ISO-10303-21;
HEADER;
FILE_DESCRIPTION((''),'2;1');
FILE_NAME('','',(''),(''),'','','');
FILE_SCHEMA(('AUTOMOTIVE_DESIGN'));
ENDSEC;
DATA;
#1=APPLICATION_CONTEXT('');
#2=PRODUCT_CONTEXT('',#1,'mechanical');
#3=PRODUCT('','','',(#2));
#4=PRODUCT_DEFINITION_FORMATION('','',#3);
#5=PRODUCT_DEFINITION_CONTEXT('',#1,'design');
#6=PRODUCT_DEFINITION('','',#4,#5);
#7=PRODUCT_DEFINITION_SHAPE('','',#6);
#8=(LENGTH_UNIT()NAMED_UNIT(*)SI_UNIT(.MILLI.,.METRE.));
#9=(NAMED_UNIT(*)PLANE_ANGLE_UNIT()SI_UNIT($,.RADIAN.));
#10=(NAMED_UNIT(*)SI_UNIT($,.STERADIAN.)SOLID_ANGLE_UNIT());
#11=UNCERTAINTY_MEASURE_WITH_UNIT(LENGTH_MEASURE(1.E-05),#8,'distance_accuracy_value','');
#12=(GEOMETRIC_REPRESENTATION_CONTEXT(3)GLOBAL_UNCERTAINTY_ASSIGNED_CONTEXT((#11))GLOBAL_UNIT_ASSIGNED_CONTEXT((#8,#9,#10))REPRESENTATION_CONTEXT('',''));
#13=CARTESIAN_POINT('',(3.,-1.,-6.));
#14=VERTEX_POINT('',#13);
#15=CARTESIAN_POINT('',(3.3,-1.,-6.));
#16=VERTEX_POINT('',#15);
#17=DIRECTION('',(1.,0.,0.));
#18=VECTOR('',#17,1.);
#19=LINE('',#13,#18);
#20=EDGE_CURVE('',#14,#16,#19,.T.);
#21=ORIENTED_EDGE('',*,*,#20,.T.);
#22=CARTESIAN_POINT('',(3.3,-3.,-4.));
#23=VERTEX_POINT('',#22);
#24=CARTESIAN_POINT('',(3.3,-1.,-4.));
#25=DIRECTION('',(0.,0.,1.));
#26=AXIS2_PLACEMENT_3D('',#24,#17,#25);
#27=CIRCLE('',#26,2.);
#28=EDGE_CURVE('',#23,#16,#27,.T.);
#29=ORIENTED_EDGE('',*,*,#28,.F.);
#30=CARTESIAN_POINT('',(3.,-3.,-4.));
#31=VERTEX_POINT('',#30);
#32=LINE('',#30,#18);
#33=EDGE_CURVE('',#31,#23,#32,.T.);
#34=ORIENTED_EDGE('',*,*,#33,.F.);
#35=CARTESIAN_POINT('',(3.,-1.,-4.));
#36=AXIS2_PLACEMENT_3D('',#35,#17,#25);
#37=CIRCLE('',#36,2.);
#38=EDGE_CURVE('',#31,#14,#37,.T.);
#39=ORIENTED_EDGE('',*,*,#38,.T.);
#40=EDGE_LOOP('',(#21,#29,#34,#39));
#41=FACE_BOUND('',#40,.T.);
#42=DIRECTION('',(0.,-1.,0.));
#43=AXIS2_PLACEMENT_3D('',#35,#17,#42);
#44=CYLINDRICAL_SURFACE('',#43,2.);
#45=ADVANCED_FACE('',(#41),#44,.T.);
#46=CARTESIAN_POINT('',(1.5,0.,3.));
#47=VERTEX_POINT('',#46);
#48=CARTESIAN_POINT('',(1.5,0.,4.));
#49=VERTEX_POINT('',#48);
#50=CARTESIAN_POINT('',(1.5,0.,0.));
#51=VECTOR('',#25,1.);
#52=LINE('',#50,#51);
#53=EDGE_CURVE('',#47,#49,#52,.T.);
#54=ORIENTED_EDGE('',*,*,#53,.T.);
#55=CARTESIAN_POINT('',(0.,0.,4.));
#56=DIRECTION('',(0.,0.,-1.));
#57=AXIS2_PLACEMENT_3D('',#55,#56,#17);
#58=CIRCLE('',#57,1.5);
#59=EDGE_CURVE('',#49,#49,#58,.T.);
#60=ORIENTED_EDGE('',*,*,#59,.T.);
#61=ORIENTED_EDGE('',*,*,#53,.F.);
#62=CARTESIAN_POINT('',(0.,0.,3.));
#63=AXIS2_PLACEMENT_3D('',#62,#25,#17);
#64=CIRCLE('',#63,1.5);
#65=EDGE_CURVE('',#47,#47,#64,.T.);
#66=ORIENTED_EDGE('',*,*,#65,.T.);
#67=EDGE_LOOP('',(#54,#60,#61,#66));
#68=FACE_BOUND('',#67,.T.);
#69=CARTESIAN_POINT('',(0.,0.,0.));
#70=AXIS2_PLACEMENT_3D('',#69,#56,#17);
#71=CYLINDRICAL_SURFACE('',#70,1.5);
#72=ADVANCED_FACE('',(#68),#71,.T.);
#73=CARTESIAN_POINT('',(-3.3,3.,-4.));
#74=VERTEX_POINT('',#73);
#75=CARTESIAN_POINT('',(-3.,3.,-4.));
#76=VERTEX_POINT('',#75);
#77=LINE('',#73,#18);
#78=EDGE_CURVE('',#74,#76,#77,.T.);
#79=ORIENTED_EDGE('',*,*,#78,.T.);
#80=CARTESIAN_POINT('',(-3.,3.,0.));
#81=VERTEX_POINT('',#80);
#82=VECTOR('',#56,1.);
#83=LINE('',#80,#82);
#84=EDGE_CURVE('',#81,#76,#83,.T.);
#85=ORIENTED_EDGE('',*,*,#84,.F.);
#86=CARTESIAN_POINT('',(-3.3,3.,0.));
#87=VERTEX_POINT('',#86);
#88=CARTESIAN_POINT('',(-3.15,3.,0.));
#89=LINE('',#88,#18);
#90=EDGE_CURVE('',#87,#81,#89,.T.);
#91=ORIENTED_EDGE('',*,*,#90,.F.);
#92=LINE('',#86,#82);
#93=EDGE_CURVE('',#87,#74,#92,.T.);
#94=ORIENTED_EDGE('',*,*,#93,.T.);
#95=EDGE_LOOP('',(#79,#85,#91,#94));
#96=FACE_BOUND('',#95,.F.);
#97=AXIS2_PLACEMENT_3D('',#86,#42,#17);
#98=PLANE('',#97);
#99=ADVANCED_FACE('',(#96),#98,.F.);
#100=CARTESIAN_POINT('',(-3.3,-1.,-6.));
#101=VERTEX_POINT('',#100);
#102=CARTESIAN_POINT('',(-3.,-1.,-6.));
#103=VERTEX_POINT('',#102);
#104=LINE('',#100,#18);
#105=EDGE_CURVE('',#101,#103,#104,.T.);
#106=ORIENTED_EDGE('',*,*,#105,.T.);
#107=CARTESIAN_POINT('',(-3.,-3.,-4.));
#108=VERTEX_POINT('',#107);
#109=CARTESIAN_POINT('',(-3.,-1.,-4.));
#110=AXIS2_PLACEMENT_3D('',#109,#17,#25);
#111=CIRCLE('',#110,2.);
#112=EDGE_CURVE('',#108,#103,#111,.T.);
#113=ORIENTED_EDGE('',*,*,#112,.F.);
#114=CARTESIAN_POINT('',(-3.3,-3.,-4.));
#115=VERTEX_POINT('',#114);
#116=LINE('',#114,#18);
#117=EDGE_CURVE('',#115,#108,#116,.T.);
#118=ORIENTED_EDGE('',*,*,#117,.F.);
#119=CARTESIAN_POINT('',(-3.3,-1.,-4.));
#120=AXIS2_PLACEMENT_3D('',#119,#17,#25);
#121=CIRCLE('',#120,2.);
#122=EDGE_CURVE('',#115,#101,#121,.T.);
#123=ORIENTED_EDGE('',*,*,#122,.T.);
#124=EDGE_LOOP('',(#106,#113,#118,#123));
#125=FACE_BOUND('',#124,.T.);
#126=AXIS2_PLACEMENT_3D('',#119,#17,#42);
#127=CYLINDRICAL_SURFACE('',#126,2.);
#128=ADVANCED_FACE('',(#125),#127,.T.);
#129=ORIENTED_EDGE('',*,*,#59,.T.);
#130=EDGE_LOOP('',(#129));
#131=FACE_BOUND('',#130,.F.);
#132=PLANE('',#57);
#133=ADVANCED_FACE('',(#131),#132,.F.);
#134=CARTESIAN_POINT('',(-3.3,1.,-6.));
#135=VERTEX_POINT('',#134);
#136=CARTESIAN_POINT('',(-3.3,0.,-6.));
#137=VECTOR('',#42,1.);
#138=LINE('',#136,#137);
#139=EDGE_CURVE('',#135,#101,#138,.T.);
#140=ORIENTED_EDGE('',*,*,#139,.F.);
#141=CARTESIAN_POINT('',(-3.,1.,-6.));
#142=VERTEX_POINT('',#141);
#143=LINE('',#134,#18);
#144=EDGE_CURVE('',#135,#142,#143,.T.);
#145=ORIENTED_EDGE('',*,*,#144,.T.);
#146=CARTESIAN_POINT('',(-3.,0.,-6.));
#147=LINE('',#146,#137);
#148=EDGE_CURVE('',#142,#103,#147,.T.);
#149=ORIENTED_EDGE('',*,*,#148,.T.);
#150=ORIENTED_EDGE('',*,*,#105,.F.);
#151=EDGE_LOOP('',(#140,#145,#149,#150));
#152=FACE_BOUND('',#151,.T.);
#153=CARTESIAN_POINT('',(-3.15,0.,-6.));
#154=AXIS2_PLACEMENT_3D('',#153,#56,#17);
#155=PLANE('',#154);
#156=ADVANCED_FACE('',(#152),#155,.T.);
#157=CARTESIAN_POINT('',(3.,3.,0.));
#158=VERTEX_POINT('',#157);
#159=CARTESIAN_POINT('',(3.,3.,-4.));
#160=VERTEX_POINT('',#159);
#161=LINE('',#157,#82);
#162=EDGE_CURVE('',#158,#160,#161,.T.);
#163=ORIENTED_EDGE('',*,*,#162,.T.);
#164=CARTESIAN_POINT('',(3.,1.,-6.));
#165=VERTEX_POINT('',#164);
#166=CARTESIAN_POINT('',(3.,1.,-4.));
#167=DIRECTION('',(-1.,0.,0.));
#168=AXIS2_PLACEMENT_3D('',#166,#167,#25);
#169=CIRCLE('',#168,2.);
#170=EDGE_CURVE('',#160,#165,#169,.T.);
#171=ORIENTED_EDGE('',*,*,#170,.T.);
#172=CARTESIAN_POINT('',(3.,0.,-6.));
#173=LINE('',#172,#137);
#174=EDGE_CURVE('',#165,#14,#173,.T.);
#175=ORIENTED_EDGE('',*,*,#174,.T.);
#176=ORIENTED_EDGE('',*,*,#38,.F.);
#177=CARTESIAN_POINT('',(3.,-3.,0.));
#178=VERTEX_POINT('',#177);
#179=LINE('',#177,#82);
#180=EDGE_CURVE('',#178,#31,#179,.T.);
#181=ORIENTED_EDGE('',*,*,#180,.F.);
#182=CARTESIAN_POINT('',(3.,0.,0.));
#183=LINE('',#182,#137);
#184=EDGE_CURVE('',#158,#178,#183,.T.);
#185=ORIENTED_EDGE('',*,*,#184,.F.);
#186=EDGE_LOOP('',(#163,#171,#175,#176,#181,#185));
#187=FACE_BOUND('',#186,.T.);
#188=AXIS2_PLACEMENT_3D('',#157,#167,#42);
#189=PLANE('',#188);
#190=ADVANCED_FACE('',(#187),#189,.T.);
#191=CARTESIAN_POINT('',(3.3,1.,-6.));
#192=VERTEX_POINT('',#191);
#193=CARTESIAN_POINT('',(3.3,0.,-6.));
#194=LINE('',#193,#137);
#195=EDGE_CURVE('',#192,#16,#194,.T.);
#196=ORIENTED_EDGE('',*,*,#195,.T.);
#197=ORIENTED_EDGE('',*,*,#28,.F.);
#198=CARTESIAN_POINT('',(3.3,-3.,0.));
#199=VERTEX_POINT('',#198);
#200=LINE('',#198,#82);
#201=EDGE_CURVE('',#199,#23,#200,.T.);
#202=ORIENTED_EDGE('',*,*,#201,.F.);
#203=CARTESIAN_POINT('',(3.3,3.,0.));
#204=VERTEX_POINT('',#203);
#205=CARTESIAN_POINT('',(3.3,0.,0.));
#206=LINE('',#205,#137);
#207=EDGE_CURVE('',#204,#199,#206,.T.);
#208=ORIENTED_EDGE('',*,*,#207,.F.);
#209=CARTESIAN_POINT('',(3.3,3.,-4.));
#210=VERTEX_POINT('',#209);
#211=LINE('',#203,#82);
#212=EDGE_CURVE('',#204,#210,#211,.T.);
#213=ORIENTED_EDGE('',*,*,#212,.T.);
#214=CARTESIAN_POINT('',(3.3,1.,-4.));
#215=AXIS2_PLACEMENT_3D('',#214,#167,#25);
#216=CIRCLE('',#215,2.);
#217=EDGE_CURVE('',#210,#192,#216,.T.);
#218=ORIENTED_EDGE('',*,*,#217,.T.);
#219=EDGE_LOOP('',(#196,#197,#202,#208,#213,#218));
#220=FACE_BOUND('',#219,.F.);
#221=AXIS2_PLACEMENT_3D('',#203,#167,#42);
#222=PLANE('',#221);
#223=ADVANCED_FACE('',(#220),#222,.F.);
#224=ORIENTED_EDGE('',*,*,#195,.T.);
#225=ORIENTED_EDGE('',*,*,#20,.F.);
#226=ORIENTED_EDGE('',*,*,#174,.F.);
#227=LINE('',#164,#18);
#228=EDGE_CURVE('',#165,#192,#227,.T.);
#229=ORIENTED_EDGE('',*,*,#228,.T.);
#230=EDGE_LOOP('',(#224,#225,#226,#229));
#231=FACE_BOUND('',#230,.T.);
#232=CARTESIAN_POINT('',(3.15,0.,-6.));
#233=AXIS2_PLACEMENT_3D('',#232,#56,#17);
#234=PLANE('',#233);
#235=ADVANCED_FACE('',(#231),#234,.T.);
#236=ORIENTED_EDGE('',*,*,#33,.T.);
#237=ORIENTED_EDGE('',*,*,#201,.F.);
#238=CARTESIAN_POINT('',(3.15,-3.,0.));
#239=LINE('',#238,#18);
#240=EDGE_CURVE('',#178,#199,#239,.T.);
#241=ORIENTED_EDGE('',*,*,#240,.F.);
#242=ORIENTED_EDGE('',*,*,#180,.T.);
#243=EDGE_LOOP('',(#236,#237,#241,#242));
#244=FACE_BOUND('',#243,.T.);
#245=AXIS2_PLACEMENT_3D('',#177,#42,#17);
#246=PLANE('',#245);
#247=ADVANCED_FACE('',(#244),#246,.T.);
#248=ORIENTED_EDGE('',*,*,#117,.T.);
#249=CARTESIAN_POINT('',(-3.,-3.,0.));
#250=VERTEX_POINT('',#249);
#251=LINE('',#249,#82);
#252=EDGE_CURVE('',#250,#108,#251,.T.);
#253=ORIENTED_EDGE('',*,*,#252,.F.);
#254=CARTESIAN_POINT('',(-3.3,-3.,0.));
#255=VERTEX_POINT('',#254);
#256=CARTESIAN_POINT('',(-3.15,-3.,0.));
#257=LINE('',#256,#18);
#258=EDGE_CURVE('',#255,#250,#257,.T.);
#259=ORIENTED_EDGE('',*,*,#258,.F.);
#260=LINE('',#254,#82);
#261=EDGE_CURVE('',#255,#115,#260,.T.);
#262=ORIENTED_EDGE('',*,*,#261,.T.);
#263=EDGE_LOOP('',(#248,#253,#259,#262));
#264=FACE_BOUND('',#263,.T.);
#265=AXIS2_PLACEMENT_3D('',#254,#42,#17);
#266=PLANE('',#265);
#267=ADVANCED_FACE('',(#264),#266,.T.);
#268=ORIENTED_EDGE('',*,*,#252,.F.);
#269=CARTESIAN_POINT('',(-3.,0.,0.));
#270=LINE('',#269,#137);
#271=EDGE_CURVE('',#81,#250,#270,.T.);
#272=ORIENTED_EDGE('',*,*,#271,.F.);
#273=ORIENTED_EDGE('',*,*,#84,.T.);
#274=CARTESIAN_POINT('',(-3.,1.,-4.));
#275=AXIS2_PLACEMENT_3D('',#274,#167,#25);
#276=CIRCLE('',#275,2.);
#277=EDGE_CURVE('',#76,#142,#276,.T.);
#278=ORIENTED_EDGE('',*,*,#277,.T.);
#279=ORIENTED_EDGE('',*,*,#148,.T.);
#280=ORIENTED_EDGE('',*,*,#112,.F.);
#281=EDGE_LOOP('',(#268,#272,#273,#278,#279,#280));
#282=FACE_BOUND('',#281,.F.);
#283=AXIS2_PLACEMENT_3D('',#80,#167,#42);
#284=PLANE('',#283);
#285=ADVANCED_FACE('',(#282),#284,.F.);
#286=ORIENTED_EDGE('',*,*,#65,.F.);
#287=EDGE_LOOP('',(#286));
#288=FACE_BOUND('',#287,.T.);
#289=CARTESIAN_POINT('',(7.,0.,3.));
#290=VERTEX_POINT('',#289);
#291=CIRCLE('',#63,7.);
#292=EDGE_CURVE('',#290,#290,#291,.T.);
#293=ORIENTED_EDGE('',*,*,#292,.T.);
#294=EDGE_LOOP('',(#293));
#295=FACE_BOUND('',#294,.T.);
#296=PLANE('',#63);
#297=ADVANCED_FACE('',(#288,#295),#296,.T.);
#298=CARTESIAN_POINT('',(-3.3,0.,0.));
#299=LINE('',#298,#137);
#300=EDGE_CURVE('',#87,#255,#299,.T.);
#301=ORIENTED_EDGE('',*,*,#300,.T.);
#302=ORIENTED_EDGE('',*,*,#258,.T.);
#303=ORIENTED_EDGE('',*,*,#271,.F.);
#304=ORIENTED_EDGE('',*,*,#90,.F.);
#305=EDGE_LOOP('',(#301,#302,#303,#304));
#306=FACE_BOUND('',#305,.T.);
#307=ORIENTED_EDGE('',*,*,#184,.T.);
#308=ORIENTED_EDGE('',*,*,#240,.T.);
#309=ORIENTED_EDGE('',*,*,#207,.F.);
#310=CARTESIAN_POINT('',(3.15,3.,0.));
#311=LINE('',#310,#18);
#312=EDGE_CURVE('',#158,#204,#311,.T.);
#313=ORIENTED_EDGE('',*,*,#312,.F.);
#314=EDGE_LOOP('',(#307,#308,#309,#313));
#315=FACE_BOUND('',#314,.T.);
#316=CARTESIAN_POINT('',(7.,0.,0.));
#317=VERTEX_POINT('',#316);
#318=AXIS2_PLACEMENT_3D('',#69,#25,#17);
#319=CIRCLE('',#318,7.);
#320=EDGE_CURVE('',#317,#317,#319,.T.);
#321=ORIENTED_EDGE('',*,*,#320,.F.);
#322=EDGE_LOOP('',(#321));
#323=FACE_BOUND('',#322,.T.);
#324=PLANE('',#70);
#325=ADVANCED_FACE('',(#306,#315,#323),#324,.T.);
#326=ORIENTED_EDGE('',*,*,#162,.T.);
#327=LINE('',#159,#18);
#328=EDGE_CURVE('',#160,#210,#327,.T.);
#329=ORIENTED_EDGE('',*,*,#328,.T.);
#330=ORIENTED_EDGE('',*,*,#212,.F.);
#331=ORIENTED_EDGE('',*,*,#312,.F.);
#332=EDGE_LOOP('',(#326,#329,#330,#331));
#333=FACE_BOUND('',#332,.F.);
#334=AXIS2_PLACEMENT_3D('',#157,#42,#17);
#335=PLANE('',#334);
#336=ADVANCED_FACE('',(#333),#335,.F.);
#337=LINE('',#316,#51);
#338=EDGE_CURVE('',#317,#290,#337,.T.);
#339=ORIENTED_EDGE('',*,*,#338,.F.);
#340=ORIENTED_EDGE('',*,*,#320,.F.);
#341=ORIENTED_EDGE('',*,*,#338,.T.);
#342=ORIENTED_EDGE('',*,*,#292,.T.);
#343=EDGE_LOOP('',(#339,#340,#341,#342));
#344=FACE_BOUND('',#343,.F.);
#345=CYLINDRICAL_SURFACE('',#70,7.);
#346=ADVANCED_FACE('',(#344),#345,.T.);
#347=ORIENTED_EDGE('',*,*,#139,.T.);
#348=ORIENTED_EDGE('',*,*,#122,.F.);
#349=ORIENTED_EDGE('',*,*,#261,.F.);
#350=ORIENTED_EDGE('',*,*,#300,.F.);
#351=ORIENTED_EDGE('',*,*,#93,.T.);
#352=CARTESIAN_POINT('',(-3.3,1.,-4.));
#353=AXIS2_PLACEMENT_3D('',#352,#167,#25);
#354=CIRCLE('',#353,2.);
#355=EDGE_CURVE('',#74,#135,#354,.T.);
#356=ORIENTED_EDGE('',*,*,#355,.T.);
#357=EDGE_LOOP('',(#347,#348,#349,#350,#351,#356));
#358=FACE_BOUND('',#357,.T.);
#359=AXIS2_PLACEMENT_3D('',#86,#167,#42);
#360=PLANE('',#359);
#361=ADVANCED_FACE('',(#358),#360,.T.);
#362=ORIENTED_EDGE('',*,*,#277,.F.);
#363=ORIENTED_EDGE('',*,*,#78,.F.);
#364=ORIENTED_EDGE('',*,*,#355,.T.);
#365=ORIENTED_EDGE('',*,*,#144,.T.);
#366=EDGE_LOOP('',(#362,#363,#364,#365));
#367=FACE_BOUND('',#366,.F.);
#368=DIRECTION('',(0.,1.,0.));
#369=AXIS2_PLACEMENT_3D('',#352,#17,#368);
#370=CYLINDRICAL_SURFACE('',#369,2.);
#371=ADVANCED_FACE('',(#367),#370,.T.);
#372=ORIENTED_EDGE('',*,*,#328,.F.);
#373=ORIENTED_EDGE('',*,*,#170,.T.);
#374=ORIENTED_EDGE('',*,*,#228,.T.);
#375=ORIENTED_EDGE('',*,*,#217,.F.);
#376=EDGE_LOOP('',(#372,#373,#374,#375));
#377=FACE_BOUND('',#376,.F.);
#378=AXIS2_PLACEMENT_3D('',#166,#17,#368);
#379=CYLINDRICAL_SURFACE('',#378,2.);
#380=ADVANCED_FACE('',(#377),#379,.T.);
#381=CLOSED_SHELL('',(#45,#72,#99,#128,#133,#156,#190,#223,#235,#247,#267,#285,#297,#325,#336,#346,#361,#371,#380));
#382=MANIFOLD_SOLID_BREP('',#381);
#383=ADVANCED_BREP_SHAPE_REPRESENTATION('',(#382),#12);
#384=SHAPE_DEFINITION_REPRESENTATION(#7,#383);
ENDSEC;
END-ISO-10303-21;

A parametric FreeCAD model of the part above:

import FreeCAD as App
import Part
import Sketcher
from FreeCAD import Vector


def edges_at(feature, points):
    """Names of the edges that pass closest to the given points."""
    edges = feature.Shape.Edges
    near = lambda p: min(range(len(edges)), key=lambda i: edges[i].distToShape(Part.Vertex(*p))[0])
    return sorted({f"Edge{near(p) + 1}" for p in points})


def add_polygon(sketch, points):
    """Adds a closed chain of lines whose ends are joined by coincident constraints."""
    first, n = sketch.GeometryCount, len(points)
    for a, b in zip(points, points[1:] + points[:1]):
        sketch.addGeometry(Part.LineSegment(App.Vector(*a, 0), App.Vector(*b, 0)), False)
    for i in range(n):
        sketch.addConstraint(Sketcher.Constraint("Coincident", first + i, 2, first + (i + 1) % n, 1))

doc = App.newDocument("Part")
params = doc.addObject("Spreadsheet::Sheet", "Params")
for row, (alias, value) in enumerate([
    ("sketch1_diameter", "14 mm"),
    ("sketch1_diameter2", "3 mm"),
    ("pad1_length", "3 mm"),
    ("pad2_length", "1.5 mm"),
    ("sketch3_height", "6 mm"),
    ("sketch3_width", "0.3 mm"),
    ("pad3_length", "6 mm"),
    ("fillet_radius", "2 mm"),
    ("sketch4_diameter", "3 mm"),
    ("pad4_length", "4 mm"),
], start=1):
    params.set(f"A{row}", alias)
    params.set(f"B{row}", "=" + value)
    params.setAlias(f"B{row}", alias)

body = doc.addObject("PartDesign::Body", "Body")

# Sketch on XY plane
sketch1 = body.newObject("Sketcher::SketchObject", "Sketch")
sketch1.AttachmentSupport = (doc.getObject("XY_Plane"), [""])
sketch1.MapMode = "FlatFace"
sketch1.addGeometry([
    Part.Circle(Vector(0, 0, 0), Vector(0, 0, 1), 7),
    Part.Circle(Vector(0, 0, 0), Vector(0, 0, 1), 1.5),
], False)
sketch1.addConstraint([
    Sketcher.Constraint("Coincident", 0, 3, -1, 1),
    Sketcher.Constraint("Coincident", 1, 3, -1, 1),
    Sketcher.Constraint("Diameter", 0, 14.0),
    Sketcher.Constraint("Diameter", 1, 3.0),
])
sketch1.setExpression("Constraints[2]", "Params.sketch1_diameter")
sketch1.setExpression("Constraints[3]", "Params.sketch1_diameter2")
pad1 = body.newObject("PartDesign::Pad", "Pad")
pad1.Profile = sketch1
pad1.setExpression("Length", "Params.pad1_length")

# Sketch on XY plane
sketch2 = body.newObject("Sketcher::SketchObject", "Sketch001")
sketch2.AttachmentSupport = (doc.getObject("XY_Plane"), [""])
sketch2.MapMode = "FlatFace"
sketch2.addGeometry(Part.Circle(Vector(0, 0, 0), Vector(0, 0, 1), 1.6), False)
sketch2.addConstraint([
    Sketcher.Constraint("Coincident", 0, 3, -1, 1),
    Sketcher.Constraint("Diameter", 0, 3.103804),
])
pad2 = body.newObject("PartDesign::Pad", "Pad001")
pad2.Profile = sketch2
pad2.setExpression("Length", "Params.pad2_length")

# Sketch on XY plane
sketch3 = body.newObject("Sketcher::SketchObject", "Sketch002")
sketch3.AttachmentSupport = (doc.getObject("XY_Plane"), [""])
sketch3.MapMode = "FlatFace"
add_polygon(sketch3, [(-3.3, -3), (-3.3, 3), (-3, 3), (-3, -3)])  # lines 0-3
add_polygon(sketch3, [(3, -3), (3, 3), (3.3, 3), (3.3, -3)])  # lines 4-7
sketch3.addConstraint([
    Sketcher.Constraint("Vertical", 0),
    Sketcher.Constraint("Horizontal", 1),
    Sketcher.Constraint("Vertical", 2),
    Sketcher.Constraint("Horizontal", 3),
    Sketcher.Constraint("Vertical", 4),
    Sketcher.Constraint("Horizontal", 5),
    Sketcher.Constraint("Vertical", 6),
    Sketcher.Constraint("Horizontal", 7),
    Sketcher.Constraint("Symmetric", 2, 2, 4, 2, -1, 1),
    Sketcher.Constraint("Symmetric", 0, 2, 6, 2, -1, 1),
    Sketcher.Constraint("Horizontal", 1, 2, 4, 2),
    Sketcher.Constraint("DistanceY", 0, 1, 0, 2, 6.0),
    Sketcher.Constraint("DistanceX", 1, 1, 1, 2, 0.3),
    Sketcher.Constraint("DistanceX", 1, 2, -1, 1, 3.0),
])
sketch3.setExpression("Constraints[19]", "Params.sketch3_height")
sketch3.setExpression("Constraints[20]", "Params.sketch3_width")
pad3 = body.newObject("PartDesign::Pad", "Pad002")
pad3.Profile = sketch3
pad3.setExpression("Length", "Params.pad3_length")
pad3.Reversed = True
doc.recompute()

fillet = body.newObject("PartDesign::Fillet", "Fillet")
fillet.Base = (pad3, edges_at(pad3, [
    (-3.15, -3, -6),
    (-3.15, 3, -6),
    (3.15, 3, -6),
    (3.15, -3, -6),
]))
fillet.setExpression("Radius", "Params.fillet_radius")

# Sketch on XY plane
sketch4 = body.newObject("Sketcher::SketchObject", "Sketch003")
sketch4.AttachmentSupport = (doc.getObject("XY_Plane"), [""])
sketch4.MapMode = "FlatFace"
sketch4.addGeometry(Part.Circle(Vector(0, 0, 0), Vector(0, 0, 1), 1.5), False)
sketch4.addConstraint([
    Sketcher.Constraint("Coincident", 0, 3, -1, 1),
    Sketcher.Constraint("Diameter", 0, 3.0),
])
sketch4.setExpression("Constraints[1]", "Params.sketch4_diameter")
pad4 = body.newObject("PartDesign::Pad", "Pad003")
pad4.Profile = sketch4
pad4.setExpression("Length", "Params.pad4_length")

doc.recompute()
